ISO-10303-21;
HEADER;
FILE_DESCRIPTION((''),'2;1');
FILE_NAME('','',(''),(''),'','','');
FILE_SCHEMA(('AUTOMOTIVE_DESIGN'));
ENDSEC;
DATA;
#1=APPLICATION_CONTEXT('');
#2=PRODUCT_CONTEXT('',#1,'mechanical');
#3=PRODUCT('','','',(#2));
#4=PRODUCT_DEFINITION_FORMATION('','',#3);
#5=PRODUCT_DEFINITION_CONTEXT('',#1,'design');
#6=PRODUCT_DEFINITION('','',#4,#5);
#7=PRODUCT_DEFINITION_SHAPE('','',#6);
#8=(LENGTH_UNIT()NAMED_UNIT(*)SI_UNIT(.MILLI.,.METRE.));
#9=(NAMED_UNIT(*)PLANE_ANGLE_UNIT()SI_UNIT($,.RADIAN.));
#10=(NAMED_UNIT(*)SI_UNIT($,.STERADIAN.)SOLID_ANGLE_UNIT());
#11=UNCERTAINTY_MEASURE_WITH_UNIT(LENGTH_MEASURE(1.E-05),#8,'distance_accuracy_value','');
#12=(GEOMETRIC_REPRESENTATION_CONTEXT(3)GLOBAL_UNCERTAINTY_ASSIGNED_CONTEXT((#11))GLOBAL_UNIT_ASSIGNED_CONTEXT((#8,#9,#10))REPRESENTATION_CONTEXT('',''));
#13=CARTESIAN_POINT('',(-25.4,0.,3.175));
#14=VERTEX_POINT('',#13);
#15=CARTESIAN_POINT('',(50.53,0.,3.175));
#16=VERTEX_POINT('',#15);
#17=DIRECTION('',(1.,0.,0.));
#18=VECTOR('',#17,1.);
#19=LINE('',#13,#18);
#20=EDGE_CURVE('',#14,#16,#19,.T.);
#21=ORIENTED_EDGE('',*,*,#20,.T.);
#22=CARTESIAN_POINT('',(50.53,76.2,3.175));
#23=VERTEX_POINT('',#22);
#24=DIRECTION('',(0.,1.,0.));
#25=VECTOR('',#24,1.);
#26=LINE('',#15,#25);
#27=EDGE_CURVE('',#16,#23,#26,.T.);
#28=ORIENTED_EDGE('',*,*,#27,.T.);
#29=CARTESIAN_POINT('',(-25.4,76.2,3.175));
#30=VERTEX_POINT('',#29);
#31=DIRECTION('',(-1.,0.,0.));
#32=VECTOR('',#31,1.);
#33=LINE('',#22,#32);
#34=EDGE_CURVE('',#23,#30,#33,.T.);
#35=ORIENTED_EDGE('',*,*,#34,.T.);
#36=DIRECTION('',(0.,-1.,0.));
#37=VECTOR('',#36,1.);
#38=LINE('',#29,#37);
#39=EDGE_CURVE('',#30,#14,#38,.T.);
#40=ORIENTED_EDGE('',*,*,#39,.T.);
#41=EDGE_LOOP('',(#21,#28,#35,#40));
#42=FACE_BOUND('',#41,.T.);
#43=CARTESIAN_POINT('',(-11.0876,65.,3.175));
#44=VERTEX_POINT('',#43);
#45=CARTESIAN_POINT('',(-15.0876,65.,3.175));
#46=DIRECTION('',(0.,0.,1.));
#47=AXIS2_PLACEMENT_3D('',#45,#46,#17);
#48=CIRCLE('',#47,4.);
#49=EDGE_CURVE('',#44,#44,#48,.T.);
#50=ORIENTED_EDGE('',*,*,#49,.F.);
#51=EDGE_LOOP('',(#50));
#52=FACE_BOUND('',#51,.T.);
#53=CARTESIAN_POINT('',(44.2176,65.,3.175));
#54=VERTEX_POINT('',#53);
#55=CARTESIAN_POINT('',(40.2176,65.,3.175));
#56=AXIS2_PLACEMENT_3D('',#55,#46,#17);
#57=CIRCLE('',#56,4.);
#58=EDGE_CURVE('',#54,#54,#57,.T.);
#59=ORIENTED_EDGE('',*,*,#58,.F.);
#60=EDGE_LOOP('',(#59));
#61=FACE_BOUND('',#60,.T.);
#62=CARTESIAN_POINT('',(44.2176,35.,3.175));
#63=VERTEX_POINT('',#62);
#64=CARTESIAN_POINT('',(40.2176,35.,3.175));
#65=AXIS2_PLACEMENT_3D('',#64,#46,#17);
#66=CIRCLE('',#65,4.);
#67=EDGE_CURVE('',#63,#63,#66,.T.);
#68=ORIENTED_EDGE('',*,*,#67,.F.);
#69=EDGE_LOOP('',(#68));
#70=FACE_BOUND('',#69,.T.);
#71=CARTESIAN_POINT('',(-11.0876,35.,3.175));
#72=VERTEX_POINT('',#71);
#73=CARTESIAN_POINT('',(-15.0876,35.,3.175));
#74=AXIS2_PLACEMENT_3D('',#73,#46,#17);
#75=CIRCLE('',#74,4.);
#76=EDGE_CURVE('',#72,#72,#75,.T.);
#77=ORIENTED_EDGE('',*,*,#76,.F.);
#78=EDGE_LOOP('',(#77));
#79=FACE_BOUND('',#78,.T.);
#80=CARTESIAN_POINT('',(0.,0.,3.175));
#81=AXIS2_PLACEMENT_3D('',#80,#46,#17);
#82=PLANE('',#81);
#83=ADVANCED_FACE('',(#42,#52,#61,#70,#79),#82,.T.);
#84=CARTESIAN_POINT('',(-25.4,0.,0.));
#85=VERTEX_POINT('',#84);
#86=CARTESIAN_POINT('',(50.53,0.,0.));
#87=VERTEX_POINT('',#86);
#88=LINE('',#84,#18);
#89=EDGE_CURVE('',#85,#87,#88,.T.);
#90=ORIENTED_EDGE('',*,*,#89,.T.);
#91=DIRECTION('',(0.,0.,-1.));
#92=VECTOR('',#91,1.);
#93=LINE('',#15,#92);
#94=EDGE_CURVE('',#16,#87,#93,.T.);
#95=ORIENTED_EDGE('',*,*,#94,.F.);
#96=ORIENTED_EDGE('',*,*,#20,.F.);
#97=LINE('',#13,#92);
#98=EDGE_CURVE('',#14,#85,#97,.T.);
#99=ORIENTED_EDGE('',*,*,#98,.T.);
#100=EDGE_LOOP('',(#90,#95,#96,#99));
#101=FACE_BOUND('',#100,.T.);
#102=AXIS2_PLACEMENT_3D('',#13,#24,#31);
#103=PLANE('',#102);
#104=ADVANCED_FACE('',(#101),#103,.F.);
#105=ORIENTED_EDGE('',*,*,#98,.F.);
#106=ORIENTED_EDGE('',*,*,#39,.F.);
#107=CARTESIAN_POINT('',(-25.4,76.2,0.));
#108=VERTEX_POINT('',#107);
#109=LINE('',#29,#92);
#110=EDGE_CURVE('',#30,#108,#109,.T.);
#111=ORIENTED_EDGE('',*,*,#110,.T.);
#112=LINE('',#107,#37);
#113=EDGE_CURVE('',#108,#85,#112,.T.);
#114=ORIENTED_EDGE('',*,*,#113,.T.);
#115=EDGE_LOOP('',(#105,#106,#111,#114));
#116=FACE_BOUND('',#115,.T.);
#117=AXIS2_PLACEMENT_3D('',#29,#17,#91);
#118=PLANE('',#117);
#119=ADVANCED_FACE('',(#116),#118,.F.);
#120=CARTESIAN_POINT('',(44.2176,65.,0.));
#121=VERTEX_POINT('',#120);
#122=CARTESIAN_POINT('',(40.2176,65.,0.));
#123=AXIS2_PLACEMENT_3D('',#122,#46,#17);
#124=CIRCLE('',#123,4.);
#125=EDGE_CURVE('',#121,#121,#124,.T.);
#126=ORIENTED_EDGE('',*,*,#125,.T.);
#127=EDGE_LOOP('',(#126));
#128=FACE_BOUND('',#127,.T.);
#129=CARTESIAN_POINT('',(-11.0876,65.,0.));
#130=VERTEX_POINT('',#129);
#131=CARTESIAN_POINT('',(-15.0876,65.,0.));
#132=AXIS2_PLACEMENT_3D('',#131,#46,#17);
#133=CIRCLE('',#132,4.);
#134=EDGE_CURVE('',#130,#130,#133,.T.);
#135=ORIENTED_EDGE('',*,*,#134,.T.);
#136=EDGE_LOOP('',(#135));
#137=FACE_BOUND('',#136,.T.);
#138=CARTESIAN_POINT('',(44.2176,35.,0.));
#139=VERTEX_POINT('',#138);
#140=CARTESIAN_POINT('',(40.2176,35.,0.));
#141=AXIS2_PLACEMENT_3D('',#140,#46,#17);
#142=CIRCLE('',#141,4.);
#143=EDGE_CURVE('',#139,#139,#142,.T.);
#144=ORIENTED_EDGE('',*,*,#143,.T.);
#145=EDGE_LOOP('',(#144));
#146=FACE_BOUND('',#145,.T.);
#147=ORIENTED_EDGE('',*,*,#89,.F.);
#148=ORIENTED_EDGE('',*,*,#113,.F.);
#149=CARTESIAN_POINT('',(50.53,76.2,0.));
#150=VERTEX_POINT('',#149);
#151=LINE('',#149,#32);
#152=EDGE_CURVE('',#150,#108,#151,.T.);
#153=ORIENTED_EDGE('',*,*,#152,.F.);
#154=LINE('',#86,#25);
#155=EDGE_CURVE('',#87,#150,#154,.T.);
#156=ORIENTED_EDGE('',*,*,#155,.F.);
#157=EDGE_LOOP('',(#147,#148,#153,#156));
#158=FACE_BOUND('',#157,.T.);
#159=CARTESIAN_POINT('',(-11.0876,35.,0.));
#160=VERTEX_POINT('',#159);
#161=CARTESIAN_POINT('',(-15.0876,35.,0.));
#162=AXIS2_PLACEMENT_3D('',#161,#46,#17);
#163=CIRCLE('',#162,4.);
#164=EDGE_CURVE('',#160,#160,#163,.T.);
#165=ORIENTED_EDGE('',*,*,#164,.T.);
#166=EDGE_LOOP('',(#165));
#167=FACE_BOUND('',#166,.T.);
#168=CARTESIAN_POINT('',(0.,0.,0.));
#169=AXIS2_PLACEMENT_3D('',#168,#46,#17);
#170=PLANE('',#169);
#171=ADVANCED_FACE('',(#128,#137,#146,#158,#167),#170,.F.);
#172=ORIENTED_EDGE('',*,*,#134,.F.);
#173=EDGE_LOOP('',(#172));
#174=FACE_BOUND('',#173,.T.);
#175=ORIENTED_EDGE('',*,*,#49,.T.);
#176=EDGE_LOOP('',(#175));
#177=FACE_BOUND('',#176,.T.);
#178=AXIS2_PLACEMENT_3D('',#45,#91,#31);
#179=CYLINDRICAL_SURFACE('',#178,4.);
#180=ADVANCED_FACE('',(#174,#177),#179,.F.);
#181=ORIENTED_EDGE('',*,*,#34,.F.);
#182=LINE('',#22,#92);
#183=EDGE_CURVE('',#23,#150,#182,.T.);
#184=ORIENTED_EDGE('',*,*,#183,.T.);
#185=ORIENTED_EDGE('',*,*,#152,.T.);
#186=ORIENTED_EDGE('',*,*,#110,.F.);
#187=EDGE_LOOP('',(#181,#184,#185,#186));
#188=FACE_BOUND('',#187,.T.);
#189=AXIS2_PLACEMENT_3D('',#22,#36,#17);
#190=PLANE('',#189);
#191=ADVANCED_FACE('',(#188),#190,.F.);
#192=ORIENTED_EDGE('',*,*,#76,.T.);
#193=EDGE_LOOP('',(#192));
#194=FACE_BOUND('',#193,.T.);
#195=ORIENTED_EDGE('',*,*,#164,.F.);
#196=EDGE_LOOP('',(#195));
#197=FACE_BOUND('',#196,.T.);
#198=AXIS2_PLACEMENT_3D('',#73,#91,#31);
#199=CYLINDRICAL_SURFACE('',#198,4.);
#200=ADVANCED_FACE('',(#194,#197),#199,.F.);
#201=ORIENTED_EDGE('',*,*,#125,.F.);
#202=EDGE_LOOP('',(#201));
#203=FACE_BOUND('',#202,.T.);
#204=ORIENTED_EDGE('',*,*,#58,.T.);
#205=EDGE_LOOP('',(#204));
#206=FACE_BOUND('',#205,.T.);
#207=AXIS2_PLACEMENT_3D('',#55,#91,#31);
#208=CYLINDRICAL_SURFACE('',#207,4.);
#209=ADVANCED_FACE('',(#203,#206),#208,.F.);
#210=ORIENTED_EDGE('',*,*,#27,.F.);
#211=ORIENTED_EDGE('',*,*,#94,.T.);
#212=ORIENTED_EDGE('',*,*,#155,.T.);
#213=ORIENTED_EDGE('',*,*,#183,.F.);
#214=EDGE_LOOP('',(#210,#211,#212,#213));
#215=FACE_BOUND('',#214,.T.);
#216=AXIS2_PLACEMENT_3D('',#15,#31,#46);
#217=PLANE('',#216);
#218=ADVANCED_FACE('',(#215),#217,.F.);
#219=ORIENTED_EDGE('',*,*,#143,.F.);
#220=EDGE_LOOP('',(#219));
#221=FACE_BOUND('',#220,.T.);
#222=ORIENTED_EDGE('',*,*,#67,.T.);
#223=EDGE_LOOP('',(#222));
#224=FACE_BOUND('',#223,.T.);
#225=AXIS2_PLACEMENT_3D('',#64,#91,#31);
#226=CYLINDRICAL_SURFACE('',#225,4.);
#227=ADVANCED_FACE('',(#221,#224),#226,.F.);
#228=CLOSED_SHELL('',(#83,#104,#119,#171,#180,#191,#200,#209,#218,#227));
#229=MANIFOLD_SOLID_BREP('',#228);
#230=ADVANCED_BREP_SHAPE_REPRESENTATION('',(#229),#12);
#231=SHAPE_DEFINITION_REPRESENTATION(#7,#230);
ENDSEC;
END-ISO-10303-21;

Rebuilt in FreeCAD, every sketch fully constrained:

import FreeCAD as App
import Part
import Sketcher

V = App.Vector
Q = App.Units.Quantity


def add_polygon(sketch, points):
    """Adds a closed chain of lines whose ends are joined by coincident constraints."""
    first, n = sketch.GeometryCount, len(points)
    for a, b in zip(points, points[1:] + points[:1]):
        sketch.addGeometry(Part.LineSegment(App.Vector(*a, 0), App.Vector(*b, 0)), False)
    for i in range(n):
        sketch.addConstraint(Sketcher.Constraint("Coincident", first + i, 2, first + (i + 1) % n, 1))

doc = App.newDocument("Part")
body = doc.addObject("PartDesign::Body", "Body")

sketch1 = body.newObject("Sketcher::SketchObject", "Sketch")
sketch1.AttachmentSupport = (doc.getObject("XY_Plane"), [""])
sketch1.MapMode = "FlatFace"
add_polygon(sketch1, [(-25.4, 76.2), (-25.4, 0), (50.5, 0), (50.5, 76.2)])
sketch1.addGeometry(Part.Circle(V(-15.1, 35, 0), V(0, 0, 1), 4), False)
sketch1.addGeometry(Part.Circle(V(40.2, 35, 0), V(0, 0, 1), 4), False)
sketch1.addGeometry(Part.Circle(V(-15.1, 65, 0), V(0, 0, 1), 4), False)
sketch1.addGeometry(Part.Circle(V(40.2, 65, 0), V(0, 0, 1), 4), False)
sketch1.addConstraint([
    Sketcher.Constraint("Vertical", 0),
    Sketcher.Constraint("Horizontal", 1),
    Sketcher.Constraint("Vertical", 2),
    Sketcher.Constraint("Horizontal", 3),
    Sketcher.Constraint("Equal", 4, 5),
    Sketcher.Constraint("Equal", 5, 6),
    Sketcher.Constraint("Equal", 6, 7),
    Sketcher.Constraint("PointOnObject", 0, 2, -1),
    Sketcher.Constraint("Horizontal", 4, 3, 5, 3),
    Sketcher.Constraint("Horizontal", 6, 3, 7, 3),
    Sketcher.Constraint("Vertical", 4, 3, 6, 3),
    Sketcher.Constraint("Vertical", 5, 3, 7, 3),
    Sketcher.Constraint("DistanceY", 0, 2, 0, 1, Q("3 in")),
    Sketcher.Constraint("DistanceX", 0, 2, -1, 1, Q("1 in")),
    Sketcher.Constraint("Diameter", 4, Q("8 mm")),
    Sketcher.Constraint("DistanceX", 4, 3, -1, 1, Q("0.594 in")),
    Sketcher.Constraint("DistanceX", 5, 3, 1, 2, Q("0.406 in")),
    Sketcher.Constraint("DistanceX", 1, 1, 1, 2, Q("75.93 mm")),
    Sketcher.Constraint("DistanceY", -1, 1, 4, 3, Q("35 mm")),
    Sketcher.Constraint("DistanceY", -1, 1, 6, 3, Q("65 mm")),
])
pad1 = body.newObject("PartDesign::Pad", "Pad")
pad1.Profile = sketch1
pad1.Length = Q("0.125 in")

doc.recompute()
